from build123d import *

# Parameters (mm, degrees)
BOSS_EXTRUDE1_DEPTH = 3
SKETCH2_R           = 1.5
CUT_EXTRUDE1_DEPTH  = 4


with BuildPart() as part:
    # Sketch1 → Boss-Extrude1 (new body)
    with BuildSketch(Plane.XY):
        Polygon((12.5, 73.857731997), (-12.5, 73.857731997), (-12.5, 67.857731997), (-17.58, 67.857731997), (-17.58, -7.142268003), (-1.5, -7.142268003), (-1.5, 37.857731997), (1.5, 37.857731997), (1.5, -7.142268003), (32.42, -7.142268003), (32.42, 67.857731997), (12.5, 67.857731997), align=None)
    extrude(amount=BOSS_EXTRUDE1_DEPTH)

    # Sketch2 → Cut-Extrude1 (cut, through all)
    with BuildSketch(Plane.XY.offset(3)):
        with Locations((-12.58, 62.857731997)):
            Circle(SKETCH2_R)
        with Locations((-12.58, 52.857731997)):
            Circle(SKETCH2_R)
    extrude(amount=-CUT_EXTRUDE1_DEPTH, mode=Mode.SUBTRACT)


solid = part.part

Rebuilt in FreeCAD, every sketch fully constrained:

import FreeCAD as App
import Part
import Sketcher
Q = App.Units.Quantity

doc = App.newDocument("Part")
body = doc.addObject("PartDesign::Body", "Body")

# Sketch on XY plane
sketch1 = body.newObject("Sketcher::SketchObject", "Sketch")
sketch1.AttachmentSupport = (doc.getObject("XY_Plane"), [""])
sketch1.MapMode = "FlatFace"
sketch1.addGeometry(Part.LineSegment(App.Vector(12.5, 73.9, 0), App.Vector(-12.5, 73.9, 0)), False)
sketch1.addGeometry(Part.LineSegment(App.Vector(-12.5, 73.9, 0), App.Vector(-12.5, 67.9, 0)), False)
sketch1.addGeometry(Part.LineSegment(App.Vector(-12.5, 67.9, 0), App.Vector(-17.6, 67.9, 0)), False)
sketch1.addGeometry(Part.LineSegment(App.Vector(-17.6, 67.9, 0), App.Vector(-17.6, -7.1, 0)), False)
sketch1.addGeometry(Part.LineSegment(App.Vector(-17.6, -7.1, 0), App.Vector(-1.5, -7.1, 0)), False)
sketch1.addGeometry(Part.LineSegment(App.Vector(-1.5, -7.1, 0), App.Vector(-1.5, 37.9, 0)), False)
sketch1.addGeometry(Part.LineSegment(App.Vector(-1.5, 37.9, 0), App.Vector(1.5, 37.9, 0)), False)
sketch1.addGeometry(Part.LineSegment(App.Vector(1.5, 37.9, 0), App.Vector(1.5, -7.1, 0)), False)
sketch1.addGeometry(Part.LineSegment(App.Vector(1.5, -7.1, 0), App.Vector(32.4, -7.1, 0)), False)
sketch1.addGeometry(Part.LineSegment(App.Vector(32.4, -7.1, 0), App.Vector(32.4, 67.9, 0)), False)
sketch1.addGeometry(Part.LineSegment(App.Vector(32.4, 67.9, 0), App.Vector(12.5, 67.9, 0)), False)
sketch1.addGeometry(Part.LineSegment(App.Vector(12.5, 67.9, 0), App.Vector(12.5, 73.9, 0)), False)
sketch1.addConstraint(Sketcher.Constraint("Coincident", 0, 2, 1, 1))
sketch1.addConstraint(Sketcher.Constraint("Coincident", 1, 2, 2, 1))
sketch1.addConstraint(Sketcher.Constraint("Coincident", 2, 2, 3, 1))
sketch1.addConstraint(Sketcher.Constraint("Coincident", 3, 2, 4, 1))
sketch1.addConstraint(Sketcher.Constraint("Coincident", 4, 2, 5, 1))
sketch1.addConstraint(Sketcher.Constraint("Coincident", 5, 2, 6, 1))
sketch1.addConstraint(Sketcher.Constraint("Coincident", 6, 2, 7, 1))
sketch1.addConstraint(Sketcher.Constraint("Coincident", 7, 2, 8, 1))
sketch1.addConstraint(Sketcher.Constraint("Coincident", 8, 2, 9, 1))
sketch1.addConstraint(Sketcher.Constraint("Coincident", 9, 2, 10, 1))
sketch1.addConstraint(Sketcher.Constraint("Coincident", 10, 2, 11, 1))
sketch1.addConstraint(Sketcher.Constraint("Coincident", 11, 2, 0, 1))
sketch1.addConstraint(Sketcher.Constraint("Horizontal", 0))
sketch1.addConstraint(Sketcher.Constraint("Vertical", 1))
sketch1.addConstraint(Sketcher.Constraint("Horizontal", 2))
sketch1.addConstraint(Sketcher.Constraint("Vertical", 3))
sketch1.addConstraint(Sketcher.Constraint("Horizontal", 4))
sketch1.addConstraint(Sketcher.Constraint("Vertical", 5))
sketch1.addConstraint(Sketcher.Constraint("Horizontal", 6))
sketch1.addConstraint(Sketcher.Constraint("Vertical", 7))
sketch1.addConstraint(Sketcher.Constraint("Horizontal", 8))
sketch1.addConstraint(Sketcher.Constraint("Vertical", 9))
sketch1.addConstraint(Sketcher.Constraint("Horizontal", 10))
sketch1.addConstraint(Sketcher.Constraint("Vertical", 11))
sketch1.addConstraint(Sketcher.Constraint("Symmetric", 4, 2, 7, 2, -2))
sketch1.addConstraint(Sketcher.Constraint("Symmetric", 1, 2, 10, 2, -2))
sketch1.addConstraint(Sketcher.Constraint("DistanceX", 0, 2, 0, 1, Q("25 mm")))
sketch1.addConstraint(Sketcher.Constraint("DistanceX", 6, 1, 6, 2, Q("3 mm")))
sketch1.addConstraint(Sketcher.Constraint("DistanceY", 1, 2, 1, 1, Q("6 mm")))
sketch1.addConstraint(Sketcher.Constraint("DistanceY", 3, 2, 3, 1, Q("75 mm")))
sketch1.addConstraint(Sketcher.Constraint("DistanceY", 5, 1, 5, 2, Q("45 mm")))
sketch1.addConstraint(Sketcher.Constraint("DistanceX", 3, 2, 8, 2, Q("50 mm")))
sketch1.addConstraint(Sketcher.Constraint("DistanceX", 2, 2, 2, 1, Q("5.08 mm")))
sketch1.addConstraint(Sketcher.Constraint("DistanceY", -1, 1, 0, 2, Q("73.857732 mm")))
pad1 = body.newObject("PartDesign::Pad", "Pad")
pad1.Profile = sketch1
pad1.Length = 3

# Sketch on XY plane
sketch2 = body.newObject("Sketcher::SketchObject", "Sketch001")
sketch2.AttachmentSupport = (doc.getObject("XY_Plane"), [""])
sketch2.MapMode = "FlatFace"
sketch2.AttachmentOffset = App.Placement(App.Vector(0, 0, 3), App.Rotation())
sketch2.addGeometry(Part.Circle(App.Vector(-12.6, 62.9, 0), App.Vector(0, 0, 1), 1.5), False)
sketch2.addGeometry(Part.Circle(App.Vector(-12.6, 52.9, 0), App.Vector(0, 0, 1), 1.5), False)
sketch2.addConstraint(Sketcher.Constraint("Equal", 0, 1))
sketch2.addConstraint(Sketcher.Constraint("Vertical", 0, 3, 1, 3))
sketch2.addConstraint(Sketcher.Constraint("Diameter", 0, Q("3 mm")))
sketch2.addConstraint(Sketcher.Constraint("DistanceY", 1, 3, 0, 3, Q("10 mm")))
sketch2.addConstraint(Sketcher.Constraint("DistanceX", 0, 3, -1, 1, Q("12.58 mm")))
sketch2.addConstraint(Sketcher.Constraint("DistanceY", -1, 1, 0, 3, Q("62.857732 mm")))
pocket1 = body.newObject("PartDesign::Pocket", "Pocket")
pocket1.Profile = sketch2
pocket1.Type = "ThroughAll"

doc.recompute()
